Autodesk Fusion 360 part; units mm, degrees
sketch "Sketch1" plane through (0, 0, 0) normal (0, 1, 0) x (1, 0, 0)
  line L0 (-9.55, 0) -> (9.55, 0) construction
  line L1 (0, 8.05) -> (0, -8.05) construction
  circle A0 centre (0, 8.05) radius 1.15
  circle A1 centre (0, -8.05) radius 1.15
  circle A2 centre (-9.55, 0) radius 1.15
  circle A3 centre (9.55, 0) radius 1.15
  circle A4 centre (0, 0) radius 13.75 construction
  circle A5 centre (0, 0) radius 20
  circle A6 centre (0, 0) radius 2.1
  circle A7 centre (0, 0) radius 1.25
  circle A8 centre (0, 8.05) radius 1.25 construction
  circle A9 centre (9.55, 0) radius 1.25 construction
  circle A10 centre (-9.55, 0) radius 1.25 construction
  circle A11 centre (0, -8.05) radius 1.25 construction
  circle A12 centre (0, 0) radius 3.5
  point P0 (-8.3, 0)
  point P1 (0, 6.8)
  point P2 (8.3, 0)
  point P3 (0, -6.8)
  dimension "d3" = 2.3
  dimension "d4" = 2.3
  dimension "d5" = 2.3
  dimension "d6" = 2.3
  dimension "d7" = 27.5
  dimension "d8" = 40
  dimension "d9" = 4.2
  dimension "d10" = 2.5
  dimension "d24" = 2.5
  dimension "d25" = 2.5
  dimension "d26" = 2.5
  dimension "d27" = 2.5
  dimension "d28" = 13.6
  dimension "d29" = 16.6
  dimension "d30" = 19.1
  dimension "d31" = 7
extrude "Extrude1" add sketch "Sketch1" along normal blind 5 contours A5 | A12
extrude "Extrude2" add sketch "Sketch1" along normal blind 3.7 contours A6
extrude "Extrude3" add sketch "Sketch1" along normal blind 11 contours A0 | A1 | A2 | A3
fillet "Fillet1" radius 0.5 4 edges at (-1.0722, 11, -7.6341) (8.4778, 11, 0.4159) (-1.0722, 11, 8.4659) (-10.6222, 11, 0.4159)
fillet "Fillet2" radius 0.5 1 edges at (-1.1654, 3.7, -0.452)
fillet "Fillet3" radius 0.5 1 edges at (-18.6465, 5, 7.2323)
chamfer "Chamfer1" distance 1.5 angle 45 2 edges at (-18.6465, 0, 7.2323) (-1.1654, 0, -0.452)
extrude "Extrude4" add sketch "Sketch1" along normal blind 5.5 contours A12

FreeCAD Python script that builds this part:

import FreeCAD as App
import Part
import Sketcher

V = App.Vector
Q = App.Units.Quantity


def edges_at(feature, points):
    """Names of the edges that pass closest to the given points."""
    edges = feature.Shape.Edges
    near = lambda p: min(range(len(edges)), key=lambda i: edges[i].distToShape(Part.Vertex(*p))[0])
    return sorted({f"Edge{near(p) + 1}" for p in points})

doc = App.newDocument("Part")
body = doc.addObject("PartDesign::Body", "Body")

sketch1 = body.newObject("Sketcher::SketchObject", "Sketch")
sketch1.AttachmentSupport = (doc.getObject("XZ_Plane"), [""])
sketch1.MapMode = "FlatFace"
sketch1.addGeometry([
    Part.Circle(V(0, 0, 0), V(0, 0, 1), 20),
    Part.Circle(V(0, 8.1, 0), V(0, 0, 1), 1.1),
    Part.Circle(V(-9.6, 0, 0), V(0, 0, 1), 1.1),
    Part.Circle(V(9.6, 0, 0), V(0, 0, 1), 1.1),
    Part.Circle(V(0, -8.1, 0), V(0, 0, 1), 1.1),
    Part.Circle(V(0, 0, 0), V(0, 0, 1), 2.1),
], False)
sketch1.addConstraint([
    Sketcher.Constraint("Coincident", 0, 3, -1, 1),
    Sketcher.Constraint("Coincident", 5, 3, -1, 1),
    Sketcher.Constraint("Equal", 1, 2),
    Sketcher.Constraint("Equal", 2, 3),
    Sketcher.Constraint("Equal", 3, 4),
    Sketcher.Constraint("Symmetric", 2, 3, 3, 3, -1, 1),
    Sketcher.Constraint("Symmetric", 1, 3, 4, 3, -1, 1),
    Sketcher.Constraint("PointOnObject", 1, 3, -2),
    Sketcher.Constraint("PointOnObject", 2, 3, -1),
    Sketcher.Constraint("Diameter", 0, Q("40 mm")),
    Sketcher.Constraint("Diameter", 1, Q("2.3 mm")),
    Sketcher.Constraint("Diameter", 5, Q("4.2 mm")),
    Sketcher.Constraint("DistanceX", 2, 3, 3, 3, Q("19.1 mm")),
    Sketcher.Constraint("DistanceY", 4, 3, 1, 3, Q("16.1 mm")),
])
pad1 = body.newObject("PartDesign::Pad", "Pad")
pad1.Profile = sketch1
pad1.Length = 5
pad1.Reversed = True

sketch2 = body.newObject("Sketcher::SketchObject", "Sketch001")
sketch2.AttachmentSupport = (doc.getObject("XZ_Plane"), [""])
sketch2.MapMode = "FlatFace"
sketch2.addGeometry([
    Part.Circle(V(0, 0, 0), V(0, 0, 1), 2.1),
    Part.Circle(V(0, 0, 0), V(0, 0, 1), 1.2),
], False)
sketch2.addConstraint([
    Sketcher.Constraint("Coincident", 0, 3, -1, 1),
    Sketcher.Constraint("Coincident", 1, 3, -1, 1),
    Sketcher.Constraint("Diameter", 0, Q("4.2 mm")),
    Sketcher.Constraint("Diameter", 1, Q("2.5 mm")),
])
pad2 = body.newObject("PartDesign::Pad", "Pad001")
pad2.Profile = sketch2
pad2.Length = 3.7
pad2.Reversed = True

sketch3 = body.newObject("Sketcher::SketchObject", "Sketch002")
sketch3.AttachmentSupport = (doc.getObject("XZ_Plane"), [""])
sketch3.MapMode = "FlatFace"
sketch3.addGeometry([
    Part.Circle(V(0, -8.1, 0), V(0, 0, 1), 1.1),
    Part.Circle(V(0, 8.1, 0), V(0, 0, 1), 1.1),
    Part.Circle(V(-9.6, 0, 0), V(0, 0, 1), 1.1),
    Part.Circle(V(9.6, 0, 0), V(0, 0, 1), 1.1),
], False)
sketch3.addConstraint([
    Sketcher.Constraint("Equal", 0, 1),
    Sketcher.Constraint("Equal", 1, 2),
    Sketcher.Constraint("Equal", 2, 3),
    Sketcher.Constraint("Symmetric", 0, 3, 1, 3, -1, 1),
    Sketcher.Constraint("Symmetric", 2, 3, 3, 3, -1, 1),
    Sketcher.Constraint("PointOnObject", 0, 3, -2),
    Sketcher.Constraint("PointOnObject", 2, 3, -1),
    Sketcher.Constraint("Diameter", 0, Q("2.3 mm")),
    Sketcher.Constraint("DistanceX", 2, 3, 3, 3, Q("19.1 mm")),
    Sketcher.Constraint("DistanceY", 0, 3, 1, 3, Q("16.1 mm")),
])
pad3 = body.newObject("PartDesign::Pad", "Pad002")
pad3.Profile = sketch3
pad3.Length = 11
pad3.Reversed = True
doc.recompute()

fillet = body.newObject("PartDesign::Fillet", "Fillet")
fillet.Base = (pad3, edges_at(pad3, [
    (-1.072, 11, -7.634),
    (8.478, 11, 0.416),
    (-1.072, 11, 8.466),
    (-10.622, 11, 0.416),
]))
fillet.Radius = 0.5
doc.recompute()

fillet2 = body.newObject("PartDesign::Fillet", "Fillet001")
fillet2.Base = (fillet, edges_at(fillet, [(-1.165, 3.7, -0.452)]))
fillet2.Radius = 0.5
doc.recompute()

fillet3 = body.newObject("PartDesign::Fillet", "Fillet002")
fillet3.Base = (fillet2, edges_at(fillet2, [(-18.646, 5, 7.232)]))
fillet3.Radius = 0.5
doc.recompute()

chamfer = body.newObject("PartDesign::Chamfer", "Chamfer")
chamfer.Base = (fillet3, edges_at(fillet3, [(-18.646, 0, 7.232), (-1.165, 0, -0.452)]))
chamfer.Size = 1.5

sketch4 = body.newObject("Sketcher::SketchObject", "Sketch003")
sketch4.AttachmentSupport = (doc.getObject("XZ_Plane"), [""])
sketch4.MapMode = "FlatFace"
sketch4.addGeometry([
    Part.Circle(V(0, 0, 0), V(0, 0, 1), 3.5),
    Part.Circle(V(0, 0, 0), V(0, 0, 1), 2.1),
], False)
sketch4.addConstraint([
    Sketcher.Constraint("Coincident", 0, 3, -1, 1),
    Sketcher.Constraint("Coincident", 1, 3, -1, 1),
    Sketcher.Constraint("Diameter", 0, Q("7 mm")),
    Sketcher.Constraint("Diameter", 1, Q("4.2 mm")),
])
pad4 = body.newObject("PartDesign::Pad", "Pad003")
pad4.Profile = sketch4
pad4.Length = 5.5
pad4.Reversed = True

doc.recompute()
